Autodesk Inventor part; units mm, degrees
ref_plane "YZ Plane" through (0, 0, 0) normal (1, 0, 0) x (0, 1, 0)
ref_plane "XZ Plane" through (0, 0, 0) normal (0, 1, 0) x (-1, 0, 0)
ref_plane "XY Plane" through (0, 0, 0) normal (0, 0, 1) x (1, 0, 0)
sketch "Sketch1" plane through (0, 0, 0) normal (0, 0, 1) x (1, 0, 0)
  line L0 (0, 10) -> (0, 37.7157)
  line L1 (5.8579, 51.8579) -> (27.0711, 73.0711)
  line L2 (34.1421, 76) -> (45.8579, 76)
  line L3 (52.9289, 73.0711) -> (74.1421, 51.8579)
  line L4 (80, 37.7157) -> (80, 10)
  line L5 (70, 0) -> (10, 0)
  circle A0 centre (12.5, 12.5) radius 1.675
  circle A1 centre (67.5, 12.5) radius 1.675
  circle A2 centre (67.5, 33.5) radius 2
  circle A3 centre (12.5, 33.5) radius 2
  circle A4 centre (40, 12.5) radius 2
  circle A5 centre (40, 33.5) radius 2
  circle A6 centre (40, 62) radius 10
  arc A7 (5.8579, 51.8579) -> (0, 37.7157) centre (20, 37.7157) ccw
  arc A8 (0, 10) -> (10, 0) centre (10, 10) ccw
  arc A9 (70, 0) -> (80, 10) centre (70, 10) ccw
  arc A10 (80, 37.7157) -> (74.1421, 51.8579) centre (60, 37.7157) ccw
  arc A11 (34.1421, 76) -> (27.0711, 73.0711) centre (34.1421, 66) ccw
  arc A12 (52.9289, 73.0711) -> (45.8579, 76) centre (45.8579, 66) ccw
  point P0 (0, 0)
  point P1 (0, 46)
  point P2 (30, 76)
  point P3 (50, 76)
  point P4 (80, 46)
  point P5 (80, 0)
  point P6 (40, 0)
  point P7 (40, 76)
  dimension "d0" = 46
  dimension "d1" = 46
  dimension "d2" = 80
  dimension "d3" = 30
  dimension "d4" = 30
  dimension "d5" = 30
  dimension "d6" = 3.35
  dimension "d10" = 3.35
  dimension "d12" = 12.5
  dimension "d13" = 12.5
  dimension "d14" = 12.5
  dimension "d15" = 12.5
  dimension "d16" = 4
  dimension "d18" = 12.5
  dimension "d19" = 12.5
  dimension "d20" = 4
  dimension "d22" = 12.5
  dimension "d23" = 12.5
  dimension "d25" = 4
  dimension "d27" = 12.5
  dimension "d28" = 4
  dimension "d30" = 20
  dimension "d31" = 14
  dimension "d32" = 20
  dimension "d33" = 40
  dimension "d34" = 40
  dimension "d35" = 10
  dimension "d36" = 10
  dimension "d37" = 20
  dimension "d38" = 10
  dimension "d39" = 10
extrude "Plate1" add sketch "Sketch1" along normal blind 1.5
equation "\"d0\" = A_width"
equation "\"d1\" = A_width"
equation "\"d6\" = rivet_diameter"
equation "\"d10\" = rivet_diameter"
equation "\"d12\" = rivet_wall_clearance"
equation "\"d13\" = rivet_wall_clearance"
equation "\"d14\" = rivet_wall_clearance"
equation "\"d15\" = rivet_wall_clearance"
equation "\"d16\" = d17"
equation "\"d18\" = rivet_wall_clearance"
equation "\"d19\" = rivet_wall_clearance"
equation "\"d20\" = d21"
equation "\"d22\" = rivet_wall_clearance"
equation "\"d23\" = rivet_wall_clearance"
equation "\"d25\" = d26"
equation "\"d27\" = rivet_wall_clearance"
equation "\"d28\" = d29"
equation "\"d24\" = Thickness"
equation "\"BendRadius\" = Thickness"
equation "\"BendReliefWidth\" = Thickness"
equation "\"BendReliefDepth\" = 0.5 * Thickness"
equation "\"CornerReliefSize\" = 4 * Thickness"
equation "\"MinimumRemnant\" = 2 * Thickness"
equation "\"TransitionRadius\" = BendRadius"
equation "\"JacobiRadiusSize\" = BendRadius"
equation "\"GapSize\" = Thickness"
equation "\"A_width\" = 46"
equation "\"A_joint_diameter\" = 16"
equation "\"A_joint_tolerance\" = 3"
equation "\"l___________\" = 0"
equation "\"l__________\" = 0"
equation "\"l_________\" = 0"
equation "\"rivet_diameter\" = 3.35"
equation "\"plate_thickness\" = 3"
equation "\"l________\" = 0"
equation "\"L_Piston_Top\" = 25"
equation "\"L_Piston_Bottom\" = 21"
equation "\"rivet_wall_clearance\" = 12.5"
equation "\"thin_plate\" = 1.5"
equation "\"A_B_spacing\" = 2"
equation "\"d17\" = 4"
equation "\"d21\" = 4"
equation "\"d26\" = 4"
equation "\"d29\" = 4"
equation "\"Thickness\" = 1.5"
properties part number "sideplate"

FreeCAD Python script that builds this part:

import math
import FreeCAD as App
import Part
import Sketcher

V = App.Vector
Q = App.Units.Quantity

doc = App.newDocument("Part")
params = doc.addObject("Spreadsheet::Sheet", "Params")
for row, (alias, value) in enumerate([
    ("sketch1_diameter", "4 mm"),
    ("sketch1_diameter2", "20 mm"),
    ("sketch1_radius", "20 mm"),
    ("sketch1_diameter3", "3.35 mm"),
    ("sketch1_length", "30 mm"),
    ("pad1_length", "1.5 mm"),
], start=1):
    params.set(f"A{row}", alias)
    params.set(f"B{row}", "=" + value)
    params.setAlias(f"B{row}", alias)

body = doc.addObject("PartDesign::Body", "Body")

# Sketch on XY plane
sketch1 = doc.addObject("Sketcher::SketchObject", "Sketch")
body.addObject(sketch1)
sketch1.AttachmentSupport = (doc.XY_Plane, [""])
sketch1.MapMode = "FlatFace"
sketch1.addGeometry([
    Part.LineSegment(V(0, 37.7157, 0), V(0, 10, 0)),  # 0
    Part.ArcOfCircle(Part.Circle(V(10, 10, 0), V(0, 0, 1), 10), math.radians(180), math.radians(270)),  # 1
    Part.LineSegment(V(10, 0, 0), V(70, 0, 0)),  # 2
    Part.ArcOfCircle(Part.Circle(V(70, 10, 0), V(0, 0, 1), 10), math.radians(-90), math.radians(0)),  # 3
    Part.LineSegment(V(80, 10, 0), V(80, 37.7157, 0)),  # 4
    Part.ArcOfCircle(Part.Circle(V(60, 37.7157, 0), V(0, 0, 1), 20), math.radians(0), math.radians(45.000203)),  # 5
    Part.LineSegment(V(74.1421, 51.8579, 0), V(52.9289, 73.0711, 0)),  # 6
    Part.ArcOfCircle(Part.Circle(V(45.8579, 66, 0), V(0, 0, 1), 9.999975), math.radians(45.000405), math.radians(90)),  # 7
    Part.LineSegment(V(45.8579, 76, 0), V(34.1421, 76, 0)),  # 8
    Part.ArcOfCircle(Part.Circle(V(34.1421, 66, 0), V(0, 0, 1), 10), math.radians(90), math.radians(134.999595)),  # 9
    Part.LineSegment(V(27.0711, 73.0711, 0), V(5.8579, 51.8579, 0)),  # 10
    Part.ArcOfCircle(Part.Circle(V(20, 37.7157, 0), V(0, 0, 1), 20.00002), math.radians(134.999797), math.radians(180)),  # 11
    Part.Circle(V(12.5, 12.5, 0), V(0, 0, 1), 1.675),  # 12
    Part.Circle(V(12.5, 33.5, 0), V(0, 0, 1), 2),  # 13
    Part.Circle(V(40, 12.5, 0), V(0, 0, 1), 2),  # 14
    Part.Circle(V(67.5, 12.5, 0), V(0, 0, 1), 1.675),  # 15
    Part.Circle(V(40, 33.5, 0), V(0, 0, 1), 2),  # 16
    Part.Circle(V(67.5, 33.5, 0), V(0, 0, 1), 2),  # 17
    Part.Circle(V(40, 62, 0), V(0, 0, 1), 10),  # 18
], False)
sketch1.addConstraint([
    Sketcher.Constraint("Tangent", 0, 2, 1, 1),
    Sketcher.Constraint("Tangent", 1, 2, 2, 1),
    Sketcher.Constraint("Tangent", 2, 2, 3, 1),
    Sketcher.Constraint("Tangent", 3, 2, 4, 1),
    Sketcher.Constraint("Tangent", 4, 2, 5, 1),
    Sketcher.Constraint("Tangent", 5, 2, 6, 1),
    Sketcher.Constraint("Tangent", 6, 2, 7, 1),
    Sketcher.Constraint("Tangent", 7, 2, 8, 1),
    Sketcher.Constraint("Tangent", 8, 2, 9, 1),
    Sketcher.Constraint("Tangent", 9, 2, 10, 1),
    Sketcher.Constraint("Tangent", 10, 2, 11, 1),
    Sketcher.Constraint("Tangent", 11, 2, 0, 1),
    Sketcher.Constraint("Vertical", 0),
    Sketcher.Constraint("Horizontal", 2),
    Sketcher.Constraint("Vertical", 4),
    Sketcher.Constraint("Horizontal", 8),
    Sketcher.Constraint("Equal", 1, 3),
    Sketcher.Constraint("Equal", 3, 7),
    Sketcher.Constraint("Equal", 7, 9),
    Sketcher.Constraint("Equal", 5, 11),
    Sketcher.Constraint("Equal", 13, 14),
    Sketcher.Constraint("Equal", 12, 15),
    Sketcher.Constraint("Equal", 14, 16),
    Sketcher.Constraint("Equal", 16, 17),
    Sketcher.Constraint("Equal", 9, 18),
    Sketcher.Constraint("PointOnObject", 0, 2, -2),
    Sketcher.Constraint("PointOnObject", 1, 2, -1),
    Sketcher.Constraint("Perpendicular", 6, 10),
    Sketcher.Constraint("Horizontal", 5, 3, 11, 3),
    Sketcher.Constraint("Horizontal", 12, 3, 14, 3),
    Sketcher.Constraint("Horizontal", 14, 3, 15, 3),
    Sketcher.Constraint("Horizontal", 13, 3, 16, 3),
    Sketcher.Constraint("Horizontal", 16, 3, 17, 3),
    Sketcher.Constraint("Horizontal", 6, 2, 9, 2),
    Sketcher.Constraint("Vertical", 12, 3, 13, 3),
    Sketcher.Constraint("Vertical", 14, 3, 16, 3),
    Sketcher.Constraint("Vertical", 15, 3, 17, 3),
    Sketcher.Constraint("Vertical", 16, 3, 18, 3),
    Sketcher.Constraint("Diameter", 13, Q("4 mm")),
    Sketcher.Constraint("Diameter", 18, Q("20 mm")),
    Sketcher.Constraint("Radius", 5, Q("20 mm")),
    Sketcher.Constraint("Diameter", 12, Q("3.35 mm")),
    Sketcher.Constraint("Distance", 6, Q("30 mm")),
    Sketcher.Constraint("DistanceX", -1, 1, 14, 3, Q("40 mm")),
    Sketcher.Constraint("DistanceX", -1, 1, 3, 2, Q("80 mm")),
    Sketcher.Constraint("DistanceY", 18, 3, 7, 3, Q("4 mm")),
    Sketcher.Constraint("DistanceX", -1, 1, 12, 3, Q("12.5 mm")),
    Sketcher.Constraint("DistanceY", -1, 1, 12, 3, Q("12.5 mm")),
    Sketcher.Constraint("DistanceX", 15, 3, 3, 2, Q("12.5 mm")),
    Sketcher.Constraint("DistanceY", -1, 1, 7, 3, Q("66 mm")),
    Sketcher.Constraint("DistanceY", 12, 3, 13, 3, Q("21 mm")),
])
sketch1.setExpression("Constraints[38]", "Params.sketch1_diameter")
sketch1.setExpression("Constraints[39]", "Params.sketch1_diameter2")
sketch1.setExpression("Constraints[40]", "Params.sketch1_radius")
sketch1.setExpression("Constraints[41]", "Params.sketch1_diameter3")
sketch1.setExpression("Constraints[42]", "Params.sketch1_length")
pad1 = doc.addObject("PartDesign::Pad", "Pad")
body.addObject(pad1)
pad1.Profile = sketch1
pad1.setExpression("Length", "Params.pad1_length")

doc.recompute()
